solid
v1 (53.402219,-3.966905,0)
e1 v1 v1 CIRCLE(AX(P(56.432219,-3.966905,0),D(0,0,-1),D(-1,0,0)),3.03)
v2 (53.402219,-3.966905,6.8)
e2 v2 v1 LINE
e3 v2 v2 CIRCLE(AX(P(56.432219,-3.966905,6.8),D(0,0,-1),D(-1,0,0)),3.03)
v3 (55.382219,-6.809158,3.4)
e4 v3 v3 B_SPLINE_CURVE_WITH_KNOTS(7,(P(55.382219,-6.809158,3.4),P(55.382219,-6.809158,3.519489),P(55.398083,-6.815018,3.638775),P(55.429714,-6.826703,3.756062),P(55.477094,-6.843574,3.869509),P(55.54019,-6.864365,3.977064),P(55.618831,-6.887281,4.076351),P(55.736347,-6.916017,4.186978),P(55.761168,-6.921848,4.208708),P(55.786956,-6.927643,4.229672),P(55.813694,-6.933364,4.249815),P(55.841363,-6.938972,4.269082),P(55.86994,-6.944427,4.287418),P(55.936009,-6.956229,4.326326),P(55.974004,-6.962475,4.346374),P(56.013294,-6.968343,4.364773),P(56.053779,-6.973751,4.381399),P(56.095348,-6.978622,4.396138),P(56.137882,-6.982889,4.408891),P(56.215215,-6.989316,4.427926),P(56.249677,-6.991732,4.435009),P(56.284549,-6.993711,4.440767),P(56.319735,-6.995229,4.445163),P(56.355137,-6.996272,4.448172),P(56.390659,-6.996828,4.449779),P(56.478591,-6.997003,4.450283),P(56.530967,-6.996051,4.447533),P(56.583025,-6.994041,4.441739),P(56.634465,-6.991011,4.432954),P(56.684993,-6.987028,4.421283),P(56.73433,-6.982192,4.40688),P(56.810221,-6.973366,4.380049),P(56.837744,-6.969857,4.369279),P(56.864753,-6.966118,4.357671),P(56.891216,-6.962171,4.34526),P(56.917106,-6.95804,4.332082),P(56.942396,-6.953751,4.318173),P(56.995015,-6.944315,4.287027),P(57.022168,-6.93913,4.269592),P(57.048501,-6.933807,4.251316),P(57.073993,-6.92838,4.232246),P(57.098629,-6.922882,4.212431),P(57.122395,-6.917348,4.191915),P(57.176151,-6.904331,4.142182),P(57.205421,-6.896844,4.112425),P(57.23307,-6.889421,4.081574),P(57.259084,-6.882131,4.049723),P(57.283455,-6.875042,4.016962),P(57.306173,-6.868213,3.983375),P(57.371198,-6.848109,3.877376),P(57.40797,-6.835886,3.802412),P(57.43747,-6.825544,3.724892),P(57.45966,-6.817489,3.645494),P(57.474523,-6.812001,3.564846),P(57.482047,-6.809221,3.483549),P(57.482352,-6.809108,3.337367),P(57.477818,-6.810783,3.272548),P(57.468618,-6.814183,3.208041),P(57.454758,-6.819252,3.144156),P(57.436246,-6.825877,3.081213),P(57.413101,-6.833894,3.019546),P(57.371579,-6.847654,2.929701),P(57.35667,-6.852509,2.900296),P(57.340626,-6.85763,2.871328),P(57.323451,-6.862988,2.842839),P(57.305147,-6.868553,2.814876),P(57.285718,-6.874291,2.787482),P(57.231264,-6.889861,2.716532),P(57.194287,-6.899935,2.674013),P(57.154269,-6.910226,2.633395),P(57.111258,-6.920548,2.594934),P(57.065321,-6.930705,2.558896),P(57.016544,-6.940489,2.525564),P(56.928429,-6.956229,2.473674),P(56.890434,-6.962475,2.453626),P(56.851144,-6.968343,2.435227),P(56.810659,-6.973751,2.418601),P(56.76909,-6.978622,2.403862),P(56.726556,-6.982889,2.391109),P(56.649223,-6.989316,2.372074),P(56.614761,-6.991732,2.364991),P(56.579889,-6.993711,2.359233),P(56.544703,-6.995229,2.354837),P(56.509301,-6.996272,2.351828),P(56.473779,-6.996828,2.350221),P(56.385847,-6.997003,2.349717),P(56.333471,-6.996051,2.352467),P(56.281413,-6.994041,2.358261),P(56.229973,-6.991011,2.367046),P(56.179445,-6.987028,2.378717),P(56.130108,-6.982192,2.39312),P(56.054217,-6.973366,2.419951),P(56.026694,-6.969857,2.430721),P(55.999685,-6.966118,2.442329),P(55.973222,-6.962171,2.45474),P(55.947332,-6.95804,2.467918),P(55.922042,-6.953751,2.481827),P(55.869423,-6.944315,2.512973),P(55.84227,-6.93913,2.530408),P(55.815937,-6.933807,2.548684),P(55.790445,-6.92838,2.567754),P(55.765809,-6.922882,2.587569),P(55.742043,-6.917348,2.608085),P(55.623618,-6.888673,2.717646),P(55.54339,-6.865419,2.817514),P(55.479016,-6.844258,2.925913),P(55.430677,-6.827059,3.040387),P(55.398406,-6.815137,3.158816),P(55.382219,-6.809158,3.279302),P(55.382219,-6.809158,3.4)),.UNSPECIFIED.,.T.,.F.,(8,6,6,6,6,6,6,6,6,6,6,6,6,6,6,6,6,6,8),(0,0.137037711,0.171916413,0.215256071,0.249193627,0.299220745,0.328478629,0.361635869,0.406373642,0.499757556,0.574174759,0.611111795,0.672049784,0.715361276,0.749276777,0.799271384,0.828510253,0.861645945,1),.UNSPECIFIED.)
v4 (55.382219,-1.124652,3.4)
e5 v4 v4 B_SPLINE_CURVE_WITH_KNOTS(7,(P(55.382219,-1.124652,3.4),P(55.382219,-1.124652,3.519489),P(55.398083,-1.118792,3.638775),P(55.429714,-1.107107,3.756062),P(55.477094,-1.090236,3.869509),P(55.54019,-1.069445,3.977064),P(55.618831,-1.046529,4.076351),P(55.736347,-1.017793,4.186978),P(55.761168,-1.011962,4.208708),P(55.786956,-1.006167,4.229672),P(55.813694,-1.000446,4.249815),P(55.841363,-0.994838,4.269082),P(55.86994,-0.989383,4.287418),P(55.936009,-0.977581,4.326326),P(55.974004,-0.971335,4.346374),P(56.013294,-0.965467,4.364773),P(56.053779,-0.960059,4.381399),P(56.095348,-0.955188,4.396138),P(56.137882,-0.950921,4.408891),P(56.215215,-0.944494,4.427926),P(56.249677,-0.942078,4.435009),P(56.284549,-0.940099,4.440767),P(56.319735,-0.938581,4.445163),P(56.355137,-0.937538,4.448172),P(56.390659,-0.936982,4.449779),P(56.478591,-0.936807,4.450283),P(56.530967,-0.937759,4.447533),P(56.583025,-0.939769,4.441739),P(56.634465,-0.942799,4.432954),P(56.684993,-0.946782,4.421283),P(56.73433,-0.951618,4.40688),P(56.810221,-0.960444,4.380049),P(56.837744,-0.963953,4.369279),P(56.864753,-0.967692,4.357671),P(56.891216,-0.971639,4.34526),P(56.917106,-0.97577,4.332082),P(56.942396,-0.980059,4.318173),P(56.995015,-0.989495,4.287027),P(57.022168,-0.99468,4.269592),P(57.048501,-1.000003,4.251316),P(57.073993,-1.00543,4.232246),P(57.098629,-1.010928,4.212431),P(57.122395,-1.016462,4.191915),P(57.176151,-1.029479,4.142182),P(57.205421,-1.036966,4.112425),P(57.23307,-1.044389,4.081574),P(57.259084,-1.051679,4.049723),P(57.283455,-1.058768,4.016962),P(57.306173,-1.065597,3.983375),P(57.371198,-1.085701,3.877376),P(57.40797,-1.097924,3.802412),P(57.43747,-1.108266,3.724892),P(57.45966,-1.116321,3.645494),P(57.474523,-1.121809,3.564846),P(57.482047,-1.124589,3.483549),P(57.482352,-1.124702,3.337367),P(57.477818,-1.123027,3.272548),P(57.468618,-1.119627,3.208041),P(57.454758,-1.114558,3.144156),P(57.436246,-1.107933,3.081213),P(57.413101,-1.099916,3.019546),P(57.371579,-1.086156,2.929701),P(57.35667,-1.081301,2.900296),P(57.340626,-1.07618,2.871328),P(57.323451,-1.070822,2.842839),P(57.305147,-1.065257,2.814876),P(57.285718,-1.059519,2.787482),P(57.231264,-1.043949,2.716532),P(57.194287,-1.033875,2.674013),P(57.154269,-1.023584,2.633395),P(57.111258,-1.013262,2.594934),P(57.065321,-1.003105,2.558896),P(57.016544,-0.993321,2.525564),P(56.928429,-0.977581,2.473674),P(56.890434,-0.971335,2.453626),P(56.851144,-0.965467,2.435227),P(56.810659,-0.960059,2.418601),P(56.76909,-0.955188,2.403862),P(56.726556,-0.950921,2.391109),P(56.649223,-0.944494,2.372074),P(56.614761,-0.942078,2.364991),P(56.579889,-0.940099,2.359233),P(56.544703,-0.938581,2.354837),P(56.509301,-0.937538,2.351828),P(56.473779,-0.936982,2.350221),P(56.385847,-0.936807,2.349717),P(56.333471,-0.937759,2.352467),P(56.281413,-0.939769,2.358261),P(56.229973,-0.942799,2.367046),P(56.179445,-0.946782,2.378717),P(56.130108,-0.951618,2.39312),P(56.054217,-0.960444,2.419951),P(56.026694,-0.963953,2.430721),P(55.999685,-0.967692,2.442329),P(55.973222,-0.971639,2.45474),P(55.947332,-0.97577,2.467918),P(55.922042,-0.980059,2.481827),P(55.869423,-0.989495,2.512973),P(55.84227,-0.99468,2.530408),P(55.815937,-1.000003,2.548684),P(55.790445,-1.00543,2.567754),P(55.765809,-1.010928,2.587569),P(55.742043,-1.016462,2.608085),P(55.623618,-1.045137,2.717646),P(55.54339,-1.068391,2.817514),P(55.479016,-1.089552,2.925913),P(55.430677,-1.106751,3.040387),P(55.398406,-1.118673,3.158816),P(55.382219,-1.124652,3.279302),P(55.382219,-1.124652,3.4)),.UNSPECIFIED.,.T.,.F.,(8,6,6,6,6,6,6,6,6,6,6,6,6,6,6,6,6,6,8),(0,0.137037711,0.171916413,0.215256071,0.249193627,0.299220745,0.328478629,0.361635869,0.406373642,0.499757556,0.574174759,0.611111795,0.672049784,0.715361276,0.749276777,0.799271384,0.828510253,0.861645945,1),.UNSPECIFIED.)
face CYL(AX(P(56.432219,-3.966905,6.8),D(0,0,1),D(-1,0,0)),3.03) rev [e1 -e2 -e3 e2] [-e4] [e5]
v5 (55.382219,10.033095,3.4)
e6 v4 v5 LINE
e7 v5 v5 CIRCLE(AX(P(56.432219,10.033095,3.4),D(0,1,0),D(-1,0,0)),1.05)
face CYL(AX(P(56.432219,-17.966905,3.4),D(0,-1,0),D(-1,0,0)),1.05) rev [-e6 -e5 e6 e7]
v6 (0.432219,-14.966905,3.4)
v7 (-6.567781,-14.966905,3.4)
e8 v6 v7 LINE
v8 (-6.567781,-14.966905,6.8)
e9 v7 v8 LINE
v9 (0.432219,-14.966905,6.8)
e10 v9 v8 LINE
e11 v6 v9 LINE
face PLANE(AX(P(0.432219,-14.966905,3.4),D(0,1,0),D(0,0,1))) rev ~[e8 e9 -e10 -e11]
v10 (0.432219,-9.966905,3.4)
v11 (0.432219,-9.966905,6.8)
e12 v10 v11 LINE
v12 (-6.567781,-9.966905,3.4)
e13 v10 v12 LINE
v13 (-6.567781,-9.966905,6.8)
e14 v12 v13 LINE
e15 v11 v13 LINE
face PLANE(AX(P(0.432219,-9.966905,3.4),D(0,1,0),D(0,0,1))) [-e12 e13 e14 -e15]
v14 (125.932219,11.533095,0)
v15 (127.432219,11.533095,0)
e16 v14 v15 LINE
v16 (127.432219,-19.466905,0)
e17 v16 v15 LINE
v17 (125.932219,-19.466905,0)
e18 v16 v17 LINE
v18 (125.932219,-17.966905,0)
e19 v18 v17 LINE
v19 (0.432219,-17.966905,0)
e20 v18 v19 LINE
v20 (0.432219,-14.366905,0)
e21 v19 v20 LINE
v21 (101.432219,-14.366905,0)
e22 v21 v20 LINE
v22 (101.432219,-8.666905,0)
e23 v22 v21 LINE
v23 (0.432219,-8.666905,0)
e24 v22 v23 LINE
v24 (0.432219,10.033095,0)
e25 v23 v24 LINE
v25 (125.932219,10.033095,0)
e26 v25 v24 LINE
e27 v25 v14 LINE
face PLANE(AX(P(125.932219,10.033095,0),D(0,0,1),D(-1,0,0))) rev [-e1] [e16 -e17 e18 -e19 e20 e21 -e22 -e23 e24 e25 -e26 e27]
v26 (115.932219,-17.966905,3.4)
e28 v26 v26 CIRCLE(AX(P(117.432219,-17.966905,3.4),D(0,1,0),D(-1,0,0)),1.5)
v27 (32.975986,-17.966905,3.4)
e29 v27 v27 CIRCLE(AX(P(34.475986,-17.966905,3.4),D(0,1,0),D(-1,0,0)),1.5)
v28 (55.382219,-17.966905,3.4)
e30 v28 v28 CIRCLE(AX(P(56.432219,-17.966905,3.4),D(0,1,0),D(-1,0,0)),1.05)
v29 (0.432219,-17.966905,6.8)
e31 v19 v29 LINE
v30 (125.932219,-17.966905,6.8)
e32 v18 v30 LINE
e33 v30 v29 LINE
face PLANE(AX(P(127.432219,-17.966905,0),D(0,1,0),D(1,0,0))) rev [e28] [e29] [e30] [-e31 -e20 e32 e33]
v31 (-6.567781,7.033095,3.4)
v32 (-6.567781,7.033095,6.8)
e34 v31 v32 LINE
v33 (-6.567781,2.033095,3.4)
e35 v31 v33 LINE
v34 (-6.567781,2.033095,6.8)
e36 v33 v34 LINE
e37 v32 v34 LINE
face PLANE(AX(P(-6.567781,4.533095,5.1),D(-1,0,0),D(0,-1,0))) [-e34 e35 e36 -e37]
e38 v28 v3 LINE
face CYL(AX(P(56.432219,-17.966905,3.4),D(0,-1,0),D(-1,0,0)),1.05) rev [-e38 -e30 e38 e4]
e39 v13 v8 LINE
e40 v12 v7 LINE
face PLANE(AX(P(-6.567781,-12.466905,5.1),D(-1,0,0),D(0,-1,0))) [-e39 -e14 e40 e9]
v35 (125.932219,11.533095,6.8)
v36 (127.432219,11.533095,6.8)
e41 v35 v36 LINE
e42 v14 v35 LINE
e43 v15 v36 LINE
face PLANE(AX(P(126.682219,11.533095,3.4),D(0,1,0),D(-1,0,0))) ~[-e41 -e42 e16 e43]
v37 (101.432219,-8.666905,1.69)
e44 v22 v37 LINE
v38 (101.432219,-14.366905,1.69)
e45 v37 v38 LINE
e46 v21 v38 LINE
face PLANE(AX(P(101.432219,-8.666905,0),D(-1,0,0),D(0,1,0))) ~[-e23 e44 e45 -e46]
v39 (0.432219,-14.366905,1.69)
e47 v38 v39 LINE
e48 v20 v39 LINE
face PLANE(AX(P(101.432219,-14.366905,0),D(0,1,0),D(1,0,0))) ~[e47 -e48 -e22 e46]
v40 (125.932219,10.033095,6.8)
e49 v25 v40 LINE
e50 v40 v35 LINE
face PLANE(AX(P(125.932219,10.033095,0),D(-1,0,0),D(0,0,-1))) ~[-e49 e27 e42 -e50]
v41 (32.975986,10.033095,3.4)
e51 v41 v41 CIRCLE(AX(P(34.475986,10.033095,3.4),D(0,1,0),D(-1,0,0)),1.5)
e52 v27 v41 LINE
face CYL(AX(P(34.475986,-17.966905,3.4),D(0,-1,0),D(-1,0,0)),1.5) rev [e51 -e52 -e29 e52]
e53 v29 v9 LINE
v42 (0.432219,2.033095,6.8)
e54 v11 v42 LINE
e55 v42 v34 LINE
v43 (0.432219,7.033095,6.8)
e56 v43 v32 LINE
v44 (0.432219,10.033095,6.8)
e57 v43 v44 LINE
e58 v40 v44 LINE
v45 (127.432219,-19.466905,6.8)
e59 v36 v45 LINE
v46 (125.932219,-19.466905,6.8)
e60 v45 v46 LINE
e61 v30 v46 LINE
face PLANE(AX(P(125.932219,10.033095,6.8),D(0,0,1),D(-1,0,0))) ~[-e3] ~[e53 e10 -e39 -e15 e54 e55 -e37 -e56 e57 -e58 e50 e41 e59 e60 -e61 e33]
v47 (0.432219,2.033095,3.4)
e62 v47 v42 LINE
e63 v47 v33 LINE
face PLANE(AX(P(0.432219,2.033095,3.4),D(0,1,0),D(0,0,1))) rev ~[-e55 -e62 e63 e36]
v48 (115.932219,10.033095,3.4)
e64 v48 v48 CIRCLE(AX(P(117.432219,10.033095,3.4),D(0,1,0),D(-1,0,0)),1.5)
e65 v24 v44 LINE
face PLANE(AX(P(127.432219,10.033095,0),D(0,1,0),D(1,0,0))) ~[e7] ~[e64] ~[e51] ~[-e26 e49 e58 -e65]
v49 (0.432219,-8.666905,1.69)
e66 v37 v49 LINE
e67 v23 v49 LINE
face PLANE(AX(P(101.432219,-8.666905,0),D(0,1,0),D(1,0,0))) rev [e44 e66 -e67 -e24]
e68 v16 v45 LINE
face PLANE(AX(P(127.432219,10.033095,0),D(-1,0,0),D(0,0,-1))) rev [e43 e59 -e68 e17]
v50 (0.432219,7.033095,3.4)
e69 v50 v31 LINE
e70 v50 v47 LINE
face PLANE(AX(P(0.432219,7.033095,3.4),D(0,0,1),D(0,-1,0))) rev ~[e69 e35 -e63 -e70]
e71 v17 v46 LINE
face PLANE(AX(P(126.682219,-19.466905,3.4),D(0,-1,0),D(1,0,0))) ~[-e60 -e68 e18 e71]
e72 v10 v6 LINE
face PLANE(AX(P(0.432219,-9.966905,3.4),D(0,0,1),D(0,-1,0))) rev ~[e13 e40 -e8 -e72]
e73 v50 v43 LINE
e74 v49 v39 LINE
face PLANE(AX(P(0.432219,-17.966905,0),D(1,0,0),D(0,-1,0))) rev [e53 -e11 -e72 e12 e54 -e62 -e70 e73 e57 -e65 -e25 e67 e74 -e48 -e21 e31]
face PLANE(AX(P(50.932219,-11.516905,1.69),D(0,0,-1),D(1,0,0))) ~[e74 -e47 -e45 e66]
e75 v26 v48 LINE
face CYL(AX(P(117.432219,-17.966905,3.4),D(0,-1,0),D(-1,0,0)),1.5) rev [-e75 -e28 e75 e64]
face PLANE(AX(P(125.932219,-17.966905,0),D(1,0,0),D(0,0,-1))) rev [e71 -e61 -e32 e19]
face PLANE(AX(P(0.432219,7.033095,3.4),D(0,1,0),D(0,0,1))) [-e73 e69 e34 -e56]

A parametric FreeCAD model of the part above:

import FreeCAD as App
import Part
import Sketcher

V = App.Vector
Q = App.Units.Quantity


def add_polygon(sketch, points):
    """Adds a closed chain of lines whose ends are joined by coincident constraints."""
    first, n = sketch.GeometryCount, len(points)
    for a, b in zip(points, points[1:] + points[:1]):
        sketch.addGeometry(Part.LineSegment(App.Vector(*a, 0), App.Vector(*b, 0)), False)
    for i in range(n):
        sketch.addConstraint(Sketcher.Constraint("Coincident", first + i, 2, first + (i + 1) % n, 1))

doc = App.newDocument("Part")
body = doc.addObject("PartDesign::Body", "Body")

sketch1 = body.newObject("Sketcher::SketchObject", "Sketch")
sketch1.AttachmentSupport = (doc.getObject("XY_Plane"), [""])
sketch1.MapMode = "FlatFace"
add_polygon(sketch1, [(-127, 10), (-127, -18), (0, -18), (0, 10)])
sketch1.addConstraint(Sketcher.Constraint("Vertical", 0))
sketch1.addConstraint(Sketcher.Constraint("Horizontal", 1))
sketch1.addConstraint(Sketcher.Constraint("Vertical", 2))
sketch1.addConstraint(Sketcher.Constraint("Horizontal", 3))
sketch1.addConstraint(Sketcher.Constraint("DistanceX", 1, 1, 1, 2, Q("127 mm")))
sketch1.addConstraint(Sketcher.Constraint("DistanceY", 0, 2, 0, 1, Q("28 mm")))
sketch1.addConstraint(Sketcher.Constraint("DistanceX", 0, 2, -1, 1, Q("127.432219 mm")))
sketch1.addConstraint(Sketcher.Constraint("DistanceY", 0, 2, -1, 1, Q("17.966905 mm")))
pad1 = body.newObject("PartDesign::Pad", "Pad")
pad1.Profile = sketch1
pad1.Length = 6.8

sketch2 = body.newObject("Sketcher::SketchObject", "Sketch001")
sketch2.AttachmentSupport = (doc.getObject("XZ_Plane"), [""])
sketch2.MapMode = "FlatFace"
sketch2.AttachmentOffset = App.Placement(V(0, 0, 17.966905), App.Rotation())
add_polygon(sketch2, [(-127.4, 6.8), (-127.4, 0), (-125.9, 0), (-125.9, 6.8)])
sketch2.addConstraint(Sketcher.Constraint("Vertical", 0))
sketch2.addConstraint(Sketcher.Constraint("Horizontal", 1))
sketch2.addConstraint(Sketcher.Constraint("Vertical", 2))
sketch2.addConstraint(Sketcher.Constraint("Horizontal", 3))
sketch2.addConstraint(Sketcher.Constraint("PointOnObject", 0, 2, -1))
sketch2.addConstraint(Sketcher.Constraint("DistanceX", 1, 1, 1, 2, Q("1.5 mm")))
sketch2.addConstraint(Sketcher.Constraint("DistanceY", 0, 2, 0, 1, Q("6.8 mm")))
sketch2.addConstraint(Sketcher.Constraint("DistanceX", 0, 2, -1, 1, Q("127.432219 mm")))
pad2 = body.newObject("PartDesign::Pad", "Pad001")
pad2.Profile = sketch2
pad2.Length = 1.5

sketch3 = body.newObject("Sketcher::SketchObject", "Sketch002")
sketch3.AttachmentSupport = (doc.getObject("XZ_Plane"), [""])
sketch3.MapMode = "FlatFace"
sketch3.AttachmentOffset = App.Placement(V(0, 0, -10.033095), App.Rotation())
add_polygon(sketch3, [(-125.9, 6.8), (-125.9, 0), (-127.4, 0), (-127.4, 6.8)])
sketch3.addConstraint(Sketcher.Constraint("Vertical", 0))
sketch3.addConstraint(Sketcher.Constraint("Horizontal", 1))
sketch3.addConstraint(Sketcher.Constraint("Vertical", 2))
sketch3.addConstraint(Sketcher.Constraint("Horizontal", 3))
sketch3.addConstraint(Sketcher.Constraint("PointOnObject", 0, 2, -1))
sketch3.addConstraint(Sketcher.Constraint("DistanceX", 1, 2, 1, 1, Q("1.5 mm")))
sketch3.addConstraint(Sketcher.Constraint("DistanceY", 0, 2, 0, 1, Q("6.8 mm")))
sketch3.addConstraint(Sketcher.Constraint("DistanceX", 0, 2, -1, 1, Q("125.932219 mm")))
pad3 = body.newObject("PartDesign::Pad", "Pad002")
pad3.Profile = sketch3
pad3.Length = 1.5
pad3.Reversed = True

sketch4 = body.newObject("Sketcher::SketchObject", "Sketch003")
sketch4.AttachmentSupport = (doc.getObject("XY_Plane"), [""])
sketch4.MapMode = "FlatFace"
sketch4.AttachmentOffset = App.Placement(V(0, 0, 6.8), App.Rotation())
sketch4.addGeometry(Part.Circle(V(-56.4, -4, 0), V(0, 0, 1), 3), False)
sketch4.addConstraint(Sketcher.Constraint("Diameter", 0, Q("6.06 mm")))
sketch4.addConstraint(Sketcher.Constraint("DistanceX", 0, 3, -1, 1, Q("56.432219 mm")))
sketch4.addConstraint(Sketcher.Constraint("DistanceY", 0, 3, -1, 1, Q("3.966905 mm")))
pocket1 = body.newObject("PartDesign::Pocket", "Pocket")
pocket1.Profile = sketch4
pocket1.Type = "ThroughAll"

sketch5 = body.newObject("Sketcher::SketchObject", "Sketch004")
sketch5.AttachmentSupport = (doc.getObject("XZ_Plane"), [""])
sketch5.MapMode = "FlatFace"
sketch5.AttachmentOffset = App.Placement(V(0, 0, 17.966905), App.Rotation())
sketch5.addGeometry(Part.Circle(V(-56.4, 3.4, 0), V(0, 0, 1), 1.1), False)
sketch5.addGeometry(Part.Circle(V(-117.4, 3.4, 0), V(0, 0, 1), 1.5), False)
sketch5.addGeometry(Part.Circle(V(-34.5, 3.4, 0), V(0, 0, 1), 1.5), False)
sketch5.addConstraint(Sketcher.Constraint("Equal", 1, 2))
sketch5.addConstraint(Sketcher.Constraint("Horizontal", 0, 3, 1, 3))
sketch5.addConstraint(Sketcher.Constraint("Horizontal", 1, 3, 2, 3))
sketch5.addConstraint(Sketcher.Constraint("Diameter", 1, Q("3 mm")))
sketch5.addConstraint(Sketcher.Constraint("Diameter", 0, Q("2.1 mm")))
sketch5.addConstraint(Sketcher.Constraint("DistanceX", 1, 3, 0, 3, Q("61 mm")))
sketch5.addConstraint(Sketcher.Constraint("DistanceY", -1, 1, 0, 3, Q("3.4 mm")))
sketch5.addConstraint(Sketcher.Constraint("DistanceX", 0, 3, -1, 1, Q("56.432219 mm")))
sketch5.addConstraint(Sketcher.Constraint("DistanceX", 2, 3, -1, 1, Q("34.475986 mm")))
pocket2 = body.newObject("PartDesign::Pocket", "Pocket001")
pocket2.Profile = sketch5
pocket2.Type = "ThroughAll"

sketch6 = body.newObject("Sketcher::SketchObject", "Sketch005")
sketch6.AttachmentSupport = (doc.getObject("XY_Plane"), [""])
sketch6.MapMode = "FlatFace"
add_polygon(sketch6, [(-101, -14), (-101, -9), (0, -9), (0, -14)])
sketch6.addConstraint(Sketcher.Constraint("Vertical", 0))
sketch6.addConstraint(Sketcher.Constraint("Horizontal", 1))
sketch6.addConstraint(Sketcher.Constraint("Vertical", 2))
sketch6.addConstraint(Sketcher.Constraint("Horizontal", 3))
sketch6.addConstraint(Sketcher.Constraint("DistanceX", 1, 1, 1, 2, Q("101 mm")))
sketch6.addConstraint(Sketcher.Constraint("DistanceY", 0, 1, 0, 2, Q("5.7 mm")))
sketch6.addConstraint(Sketcher.Constraint("DistanceX", 0, 2, -1, 1, Q("101.432219 mm")))
sketch6.addConstraint(Sketcher.Constraint("DistanceY", 0, 2, -1, 1, Q("8.666905 mm")))
pocket3 = body.newObject("PartDesign::Pocket", "Pocket002")
pocket3.Profile = sketch6
pocket3.Length = 1.69
pocket3.Reversed = True
body2 = doc.addObject("PartDesign::Body", "Body001")
doc.recompute()

mirroring = doc.addObject("Part::Mirroring", "Mirroring")
mirroring.Source = body
mirroring.Base = V(0, 0, 0)
mirroring.Normal = V(1, 0, 0)
body2.BaseFeature = mirroring
doc.recompute()

sketch7 = body2.newObject("Sketcher::SketchObject", "Sketch006")
sketch7.AttachmentSupport = (doc.getObject("YZ_Plane001"), [""])
sketch7.MapMode = "FlatFace"
sketch7.AttachmentOffset = App.Placement(V(0, 0, 0.432219), App.Rotation())
add_polygon(sketch7, [(7, 6.8), (7, 3.4), (2, 3.4), (2, 6.8)])
add_polygon(sketch7, [(-10, 6.8), (-10, 3.4), (-15, 3.4), (-15, 6.8)])
sketch7.addConstraint(Sketcher.Constraint("Vertical", 0))
sketch7.addConstraint(Sketcher.Constraint("Horizontal", 1))
sketch7.addConstraint(Sketcher.Constraint("Vertical", 2))
sketch7.addConstraint(Sketcher.Constraint("Horizontal", 3))
sketch7.addConstraint(Sketcher.Constraint("Vertical", 4))
sketch7.addConstraint(Sketcher.Constraint("Horizontal", 5))
sketch7.addConstraint(Sketcher.Constraint("Vertical", 6))
sketch7.addConstraint(Sketcher.Constraint("Horizontal", 7))
sketch7.addConstraint(Sketcher.Constraint("Horizontal", 1, 2, 4, 2))
sketch7.addConstraint(Sketcher.Constraint("Horizontal", 3, 2, 6, 2))
sketch7.addConstraint(Sketcher.Constraint("Equal", 3, 5))
sketch7.addConstraint(Sketcher.Constraint("DistanceX", 1, 2, 1, 1, Q("5 mm")))
sketch7.addConstraint(Sketcher.Constraint("DistanceY", 0, 2, 0, 1, Q("3.4 mm")))
sketch7.addConstraint(Sketcher.Constraint("DistanceX", 4, 2, 1, 2, Q("12 mm")))
sketch7.addConstraint(Sketcher.Constraint("DistanceY", -1, 1, 0, 2, Q("3.4 mm")))
sketch7.addConstraint(Sketcher.Constraint("DistanceX", -1, 1, 0, 2, Q("7.033095 mm")))
pad4 = body2.newObject("PartDesign::Pad", "Pad003")
pad4.Profile = sketch7
pad4.Length = 7
pad4.Reversed = True
body.Visibility = False
mirroring.Visibility = False

doc.recompute()
